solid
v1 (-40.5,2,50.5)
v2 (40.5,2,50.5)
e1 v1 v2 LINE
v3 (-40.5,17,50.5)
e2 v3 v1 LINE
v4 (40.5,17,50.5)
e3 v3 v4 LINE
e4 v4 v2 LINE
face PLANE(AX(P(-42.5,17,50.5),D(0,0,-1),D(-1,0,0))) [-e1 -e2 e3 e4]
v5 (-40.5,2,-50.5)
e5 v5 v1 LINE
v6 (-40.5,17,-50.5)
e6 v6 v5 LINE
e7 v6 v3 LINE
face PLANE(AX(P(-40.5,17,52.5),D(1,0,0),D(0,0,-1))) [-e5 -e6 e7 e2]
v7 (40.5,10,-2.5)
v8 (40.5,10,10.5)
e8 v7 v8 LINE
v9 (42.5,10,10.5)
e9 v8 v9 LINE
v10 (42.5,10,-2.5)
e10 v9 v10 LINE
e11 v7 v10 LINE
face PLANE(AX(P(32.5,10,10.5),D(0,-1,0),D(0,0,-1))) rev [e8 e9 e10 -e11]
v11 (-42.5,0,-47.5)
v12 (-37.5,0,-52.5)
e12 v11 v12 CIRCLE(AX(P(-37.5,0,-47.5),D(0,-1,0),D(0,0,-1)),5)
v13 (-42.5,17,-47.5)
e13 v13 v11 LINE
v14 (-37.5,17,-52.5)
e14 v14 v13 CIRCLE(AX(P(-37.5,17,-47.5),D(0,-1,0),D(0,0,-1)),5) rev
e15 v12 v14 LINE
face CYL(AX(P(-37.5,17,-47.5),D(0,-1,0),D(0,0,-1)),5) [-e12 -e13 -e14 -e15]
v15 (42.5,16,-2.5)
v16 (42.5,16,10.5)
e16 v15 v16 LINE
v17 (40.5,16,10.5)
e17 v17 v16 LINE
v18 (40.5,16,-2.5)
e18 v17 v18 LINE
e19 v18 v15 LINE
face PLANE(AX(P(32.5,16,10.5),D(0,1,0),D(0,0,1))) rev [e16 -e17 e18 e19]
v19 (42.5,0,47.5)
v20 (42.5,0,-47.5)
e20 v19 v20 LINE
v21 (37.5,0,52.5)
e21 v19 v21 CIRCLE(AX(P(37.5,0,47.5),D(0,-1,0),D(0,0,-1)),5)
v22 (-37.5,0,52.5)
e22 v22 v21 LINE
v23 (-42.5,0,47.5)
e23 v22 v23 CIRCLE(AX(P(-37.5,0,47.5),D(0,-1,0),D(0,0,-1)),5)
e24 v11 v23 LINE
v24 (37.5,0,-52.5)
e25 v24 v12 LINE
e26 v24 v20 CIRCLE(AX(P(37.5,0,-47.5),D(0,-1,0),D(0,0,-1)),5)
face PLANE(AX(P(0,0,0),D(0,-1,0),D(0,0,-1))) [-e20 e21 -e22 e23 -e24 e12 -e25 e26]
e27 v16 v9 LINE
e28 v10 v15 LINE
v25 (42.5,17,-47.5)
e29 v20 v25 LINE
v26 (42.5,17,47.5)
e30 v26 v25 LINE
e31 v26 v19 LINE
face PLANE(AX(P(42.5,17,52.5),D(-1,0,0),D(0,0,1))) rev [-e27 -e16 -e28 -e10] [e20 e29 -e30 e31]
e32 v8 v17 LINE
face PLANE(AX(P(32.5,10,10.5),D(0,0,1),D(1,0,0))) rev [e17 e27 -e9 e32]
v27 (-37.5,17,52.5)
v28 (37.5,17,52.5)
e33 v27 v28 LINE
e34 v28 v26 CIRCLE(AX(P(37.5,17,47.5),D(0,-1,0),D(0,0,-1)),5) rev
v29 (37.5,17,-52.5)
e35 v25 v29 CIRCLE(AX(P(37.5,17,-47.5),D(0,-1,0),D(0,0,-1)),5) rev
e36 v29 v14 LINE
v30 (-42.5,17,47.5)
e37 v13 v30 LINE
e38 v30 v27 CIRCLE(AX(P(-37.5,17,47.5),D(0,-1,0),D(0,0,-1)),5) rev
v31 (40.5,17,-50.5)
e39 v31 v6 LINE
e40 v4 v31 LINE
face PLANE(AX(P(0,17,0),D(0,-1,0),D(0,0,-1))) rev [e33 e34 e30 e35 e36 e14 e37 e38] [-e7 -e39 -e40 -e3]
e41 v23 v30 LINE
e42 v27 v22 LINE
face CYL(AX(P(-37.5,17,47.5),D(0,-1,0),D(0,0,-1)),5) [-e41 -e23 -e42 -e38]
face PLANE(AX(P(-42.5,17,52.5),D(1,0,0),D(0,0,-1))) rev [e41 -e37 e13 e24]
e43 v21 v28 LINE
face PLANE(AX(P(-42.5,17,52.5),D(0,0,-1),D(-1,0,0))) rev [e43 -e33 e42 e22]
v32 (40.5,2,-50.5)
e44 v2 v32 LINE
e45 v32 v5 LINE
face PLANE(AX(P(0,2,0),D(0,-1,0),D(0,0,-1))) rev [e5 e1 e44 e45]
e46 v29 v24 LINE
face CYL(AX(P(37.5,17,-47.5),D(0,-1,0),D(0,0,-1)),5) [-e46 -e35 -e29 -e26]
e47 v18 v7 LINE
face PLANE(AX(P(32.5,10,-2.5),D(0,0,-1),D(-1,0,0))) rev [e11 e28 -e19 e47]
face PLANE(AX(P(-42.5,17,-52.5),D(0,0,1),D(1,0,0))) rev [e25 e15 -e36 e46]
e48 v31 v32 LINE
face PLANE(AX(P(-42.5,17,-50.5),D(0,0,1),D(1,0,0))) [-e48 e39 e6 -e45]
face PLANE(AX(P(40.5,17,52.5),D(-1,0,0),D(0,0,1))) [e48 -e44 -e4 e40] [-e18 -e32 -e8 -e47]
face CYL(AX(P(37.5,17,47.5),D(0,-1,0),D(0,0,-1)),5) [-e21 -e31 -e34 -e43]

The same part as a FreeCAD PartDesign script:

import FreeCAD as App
import Part
import Sketcher

V = App.Vector
Q = App.Units.Quantity


def edges_at(feature, points):
    """Names of the edges that pass closest to the given points."""
    edges = feature.Shape.Edges
    near = lambda p: min(range(len(edges)), key=lambda i: edges[i].distToShape(Part.Vertex(*p))[0])
    return sorted({f"Edge{near(p) + 1}" for p in points})


def faces_at(feature, points):
    """Names of the faces that lie closest to the given points."""
    faces = feature.Shape.Faces
    near = lambda p: min(range(len(faces)), key=lambda i: faces[i].distToShape(Part.Vertex(*p))[0])
    return sorted({f"Face{near(p) + 1}" for p in points})

doc = App.newDocument("Part")
body = doc.addObject("PartDesign::Body", "Body")

# Sketch on XZ plane
sketch1 = doc.addObject("Sketcher::SketchObject", "Sketch")
body.addObject(sketch1)
sketch1.AttachmentSupport = (doc.XZ_Plane, [""])
sketch1.MapMode = "FlatFace"
sketch1.addGeometry([
    Part.LineSegment(V(-42, -52, 0), V(-42, 52, 0)),
    Part.LineSegment(V(-42, 52, 0), V(42, 52, 0)),
    Part.LineSegment(V(42, 52, 0), V(42, -52, 0)),
    Part.LineSegment(V(42, -52, 0), V(-42, -52, 0)),
], False)
sketch1.addConstraint([
    Sketcher.Constraint("Coincident", 0, 2, 1, 1),
    Sketcher.Constraint("Coincident", 1, 2, 2, 1),
    Sketcher.Constraint("Coincident", 2, 2, 3, 1),
    Sketcher.Constraint("Coincident", 3, 2, 0, 1),
    Sketcher.Constraint("Vertical", 0),
    Sketcher.Constraint("Horizontal", 1),
    Sketcher.Constraint("Vertical", 2),
    Sketcher.Constraint("Horizontal", 3),
    Sketcher.Constraint("Symmetric", 0, 2, 2, 2, -1, 1),
    Sketcher.Constraint("DistanceX", 1, 1, 1, 2, Q("85 mm")),
    Sketcher.Constraint("DistanceY", 0, 1, 0, 2, Q("105 mm")),
])
pad1 = doc.addObject("PartDesign::Pad", "Pad")
body.addObject(pad1)
pad1.Profile = sketch1
pad1.Length = 17
pad1.Reversed = True
doc.recompute()

thickness = doc.addObject("PartDesign::Thickness", "Thickness")
body.addObject(thickness)
thickness.Base = (pad1, faces_at(pad1, [(0, 17, 0)]))
thickness.Value = 2
thickness.Reversed = True
thickness.Join = "Intersection"

# Sketch on YZ plane
sketch2 = doc.addObject("Sketcher::SketchObject", "Sketch001")
body.addObject(sketch2)
sketch2.AttachmentSupport = (doc.YZ_Plane, [""])
sketch2.MapMode = "FlatFace"
sketch2.AttachmentOffset = App.Placement(V(0, 0, 42.5), App.Rotation())
sketch2.addGeometry([
    Part.LineSegment(V(16, 10, 0), V(10, 10, 0)),
    Part.LineSegment(V(10, 10, 0), V(10, -2, 0)),
    Part.LineSegment(V(10, -2, 0), V(16, -2, 0)),
    Part.LineSegment(V(16, -2, 0), V(16, 10, 0)),
], False)
sketch2.addConstraint([
    Sketcher.Constraint("Coincident", 0, 2, 1, 1),
    Sketcher.Constraint("Coincident", 1, 2, 2, 1),
    Sketcher.Constraint("Coincident", 2, 2, 3, 1),
    Sketcher.Constraint("Coincident", 3, 2, 0, 1),
    Sketcher.Constraint("Horizontal", 0),
    Sketcher.Constraint("Vertical", 1),
    Sketcher.Constraint("Horizontal", 2),
    Sketcher.Constraint("Vertical", 3),
    Sketcher.Constraint("DistanceX", 0, 2, 0, 1, Q("6 mm")),
    Sketcher.Constraint("DistanceY", 1, 2, 1, 1, Q("13 mm")),
    Sketcher.Constraint("DistanceX", -1, 1, 0, 2, Q("10 mm")),
    Sketcher.Constraint("DistanceY", -1, 1, 0, 2, Q("10.5 mm")),
])
pocket1 = doc.addObject("PartDesign::Pocket", "Pocket")
body.addObject(pocket1)
pocket1.Profile = sketch2
pocket1.Length = 10
doc.recompute()

fillet = doc.addObject("PartDesign::Fillet", "Fillet")
body.addObject(fillet)
fillet.Base = (pocket1, edges_at(pocket1, [
    (42.5, 8.5, 52.5),
    (-42.5, 8.5, 52.5),
    (-42.5, 8.5, -52.5),
    (42.5, 8.5, -52.5),
]))
fillet.Radius = 5

doc.recompute()
